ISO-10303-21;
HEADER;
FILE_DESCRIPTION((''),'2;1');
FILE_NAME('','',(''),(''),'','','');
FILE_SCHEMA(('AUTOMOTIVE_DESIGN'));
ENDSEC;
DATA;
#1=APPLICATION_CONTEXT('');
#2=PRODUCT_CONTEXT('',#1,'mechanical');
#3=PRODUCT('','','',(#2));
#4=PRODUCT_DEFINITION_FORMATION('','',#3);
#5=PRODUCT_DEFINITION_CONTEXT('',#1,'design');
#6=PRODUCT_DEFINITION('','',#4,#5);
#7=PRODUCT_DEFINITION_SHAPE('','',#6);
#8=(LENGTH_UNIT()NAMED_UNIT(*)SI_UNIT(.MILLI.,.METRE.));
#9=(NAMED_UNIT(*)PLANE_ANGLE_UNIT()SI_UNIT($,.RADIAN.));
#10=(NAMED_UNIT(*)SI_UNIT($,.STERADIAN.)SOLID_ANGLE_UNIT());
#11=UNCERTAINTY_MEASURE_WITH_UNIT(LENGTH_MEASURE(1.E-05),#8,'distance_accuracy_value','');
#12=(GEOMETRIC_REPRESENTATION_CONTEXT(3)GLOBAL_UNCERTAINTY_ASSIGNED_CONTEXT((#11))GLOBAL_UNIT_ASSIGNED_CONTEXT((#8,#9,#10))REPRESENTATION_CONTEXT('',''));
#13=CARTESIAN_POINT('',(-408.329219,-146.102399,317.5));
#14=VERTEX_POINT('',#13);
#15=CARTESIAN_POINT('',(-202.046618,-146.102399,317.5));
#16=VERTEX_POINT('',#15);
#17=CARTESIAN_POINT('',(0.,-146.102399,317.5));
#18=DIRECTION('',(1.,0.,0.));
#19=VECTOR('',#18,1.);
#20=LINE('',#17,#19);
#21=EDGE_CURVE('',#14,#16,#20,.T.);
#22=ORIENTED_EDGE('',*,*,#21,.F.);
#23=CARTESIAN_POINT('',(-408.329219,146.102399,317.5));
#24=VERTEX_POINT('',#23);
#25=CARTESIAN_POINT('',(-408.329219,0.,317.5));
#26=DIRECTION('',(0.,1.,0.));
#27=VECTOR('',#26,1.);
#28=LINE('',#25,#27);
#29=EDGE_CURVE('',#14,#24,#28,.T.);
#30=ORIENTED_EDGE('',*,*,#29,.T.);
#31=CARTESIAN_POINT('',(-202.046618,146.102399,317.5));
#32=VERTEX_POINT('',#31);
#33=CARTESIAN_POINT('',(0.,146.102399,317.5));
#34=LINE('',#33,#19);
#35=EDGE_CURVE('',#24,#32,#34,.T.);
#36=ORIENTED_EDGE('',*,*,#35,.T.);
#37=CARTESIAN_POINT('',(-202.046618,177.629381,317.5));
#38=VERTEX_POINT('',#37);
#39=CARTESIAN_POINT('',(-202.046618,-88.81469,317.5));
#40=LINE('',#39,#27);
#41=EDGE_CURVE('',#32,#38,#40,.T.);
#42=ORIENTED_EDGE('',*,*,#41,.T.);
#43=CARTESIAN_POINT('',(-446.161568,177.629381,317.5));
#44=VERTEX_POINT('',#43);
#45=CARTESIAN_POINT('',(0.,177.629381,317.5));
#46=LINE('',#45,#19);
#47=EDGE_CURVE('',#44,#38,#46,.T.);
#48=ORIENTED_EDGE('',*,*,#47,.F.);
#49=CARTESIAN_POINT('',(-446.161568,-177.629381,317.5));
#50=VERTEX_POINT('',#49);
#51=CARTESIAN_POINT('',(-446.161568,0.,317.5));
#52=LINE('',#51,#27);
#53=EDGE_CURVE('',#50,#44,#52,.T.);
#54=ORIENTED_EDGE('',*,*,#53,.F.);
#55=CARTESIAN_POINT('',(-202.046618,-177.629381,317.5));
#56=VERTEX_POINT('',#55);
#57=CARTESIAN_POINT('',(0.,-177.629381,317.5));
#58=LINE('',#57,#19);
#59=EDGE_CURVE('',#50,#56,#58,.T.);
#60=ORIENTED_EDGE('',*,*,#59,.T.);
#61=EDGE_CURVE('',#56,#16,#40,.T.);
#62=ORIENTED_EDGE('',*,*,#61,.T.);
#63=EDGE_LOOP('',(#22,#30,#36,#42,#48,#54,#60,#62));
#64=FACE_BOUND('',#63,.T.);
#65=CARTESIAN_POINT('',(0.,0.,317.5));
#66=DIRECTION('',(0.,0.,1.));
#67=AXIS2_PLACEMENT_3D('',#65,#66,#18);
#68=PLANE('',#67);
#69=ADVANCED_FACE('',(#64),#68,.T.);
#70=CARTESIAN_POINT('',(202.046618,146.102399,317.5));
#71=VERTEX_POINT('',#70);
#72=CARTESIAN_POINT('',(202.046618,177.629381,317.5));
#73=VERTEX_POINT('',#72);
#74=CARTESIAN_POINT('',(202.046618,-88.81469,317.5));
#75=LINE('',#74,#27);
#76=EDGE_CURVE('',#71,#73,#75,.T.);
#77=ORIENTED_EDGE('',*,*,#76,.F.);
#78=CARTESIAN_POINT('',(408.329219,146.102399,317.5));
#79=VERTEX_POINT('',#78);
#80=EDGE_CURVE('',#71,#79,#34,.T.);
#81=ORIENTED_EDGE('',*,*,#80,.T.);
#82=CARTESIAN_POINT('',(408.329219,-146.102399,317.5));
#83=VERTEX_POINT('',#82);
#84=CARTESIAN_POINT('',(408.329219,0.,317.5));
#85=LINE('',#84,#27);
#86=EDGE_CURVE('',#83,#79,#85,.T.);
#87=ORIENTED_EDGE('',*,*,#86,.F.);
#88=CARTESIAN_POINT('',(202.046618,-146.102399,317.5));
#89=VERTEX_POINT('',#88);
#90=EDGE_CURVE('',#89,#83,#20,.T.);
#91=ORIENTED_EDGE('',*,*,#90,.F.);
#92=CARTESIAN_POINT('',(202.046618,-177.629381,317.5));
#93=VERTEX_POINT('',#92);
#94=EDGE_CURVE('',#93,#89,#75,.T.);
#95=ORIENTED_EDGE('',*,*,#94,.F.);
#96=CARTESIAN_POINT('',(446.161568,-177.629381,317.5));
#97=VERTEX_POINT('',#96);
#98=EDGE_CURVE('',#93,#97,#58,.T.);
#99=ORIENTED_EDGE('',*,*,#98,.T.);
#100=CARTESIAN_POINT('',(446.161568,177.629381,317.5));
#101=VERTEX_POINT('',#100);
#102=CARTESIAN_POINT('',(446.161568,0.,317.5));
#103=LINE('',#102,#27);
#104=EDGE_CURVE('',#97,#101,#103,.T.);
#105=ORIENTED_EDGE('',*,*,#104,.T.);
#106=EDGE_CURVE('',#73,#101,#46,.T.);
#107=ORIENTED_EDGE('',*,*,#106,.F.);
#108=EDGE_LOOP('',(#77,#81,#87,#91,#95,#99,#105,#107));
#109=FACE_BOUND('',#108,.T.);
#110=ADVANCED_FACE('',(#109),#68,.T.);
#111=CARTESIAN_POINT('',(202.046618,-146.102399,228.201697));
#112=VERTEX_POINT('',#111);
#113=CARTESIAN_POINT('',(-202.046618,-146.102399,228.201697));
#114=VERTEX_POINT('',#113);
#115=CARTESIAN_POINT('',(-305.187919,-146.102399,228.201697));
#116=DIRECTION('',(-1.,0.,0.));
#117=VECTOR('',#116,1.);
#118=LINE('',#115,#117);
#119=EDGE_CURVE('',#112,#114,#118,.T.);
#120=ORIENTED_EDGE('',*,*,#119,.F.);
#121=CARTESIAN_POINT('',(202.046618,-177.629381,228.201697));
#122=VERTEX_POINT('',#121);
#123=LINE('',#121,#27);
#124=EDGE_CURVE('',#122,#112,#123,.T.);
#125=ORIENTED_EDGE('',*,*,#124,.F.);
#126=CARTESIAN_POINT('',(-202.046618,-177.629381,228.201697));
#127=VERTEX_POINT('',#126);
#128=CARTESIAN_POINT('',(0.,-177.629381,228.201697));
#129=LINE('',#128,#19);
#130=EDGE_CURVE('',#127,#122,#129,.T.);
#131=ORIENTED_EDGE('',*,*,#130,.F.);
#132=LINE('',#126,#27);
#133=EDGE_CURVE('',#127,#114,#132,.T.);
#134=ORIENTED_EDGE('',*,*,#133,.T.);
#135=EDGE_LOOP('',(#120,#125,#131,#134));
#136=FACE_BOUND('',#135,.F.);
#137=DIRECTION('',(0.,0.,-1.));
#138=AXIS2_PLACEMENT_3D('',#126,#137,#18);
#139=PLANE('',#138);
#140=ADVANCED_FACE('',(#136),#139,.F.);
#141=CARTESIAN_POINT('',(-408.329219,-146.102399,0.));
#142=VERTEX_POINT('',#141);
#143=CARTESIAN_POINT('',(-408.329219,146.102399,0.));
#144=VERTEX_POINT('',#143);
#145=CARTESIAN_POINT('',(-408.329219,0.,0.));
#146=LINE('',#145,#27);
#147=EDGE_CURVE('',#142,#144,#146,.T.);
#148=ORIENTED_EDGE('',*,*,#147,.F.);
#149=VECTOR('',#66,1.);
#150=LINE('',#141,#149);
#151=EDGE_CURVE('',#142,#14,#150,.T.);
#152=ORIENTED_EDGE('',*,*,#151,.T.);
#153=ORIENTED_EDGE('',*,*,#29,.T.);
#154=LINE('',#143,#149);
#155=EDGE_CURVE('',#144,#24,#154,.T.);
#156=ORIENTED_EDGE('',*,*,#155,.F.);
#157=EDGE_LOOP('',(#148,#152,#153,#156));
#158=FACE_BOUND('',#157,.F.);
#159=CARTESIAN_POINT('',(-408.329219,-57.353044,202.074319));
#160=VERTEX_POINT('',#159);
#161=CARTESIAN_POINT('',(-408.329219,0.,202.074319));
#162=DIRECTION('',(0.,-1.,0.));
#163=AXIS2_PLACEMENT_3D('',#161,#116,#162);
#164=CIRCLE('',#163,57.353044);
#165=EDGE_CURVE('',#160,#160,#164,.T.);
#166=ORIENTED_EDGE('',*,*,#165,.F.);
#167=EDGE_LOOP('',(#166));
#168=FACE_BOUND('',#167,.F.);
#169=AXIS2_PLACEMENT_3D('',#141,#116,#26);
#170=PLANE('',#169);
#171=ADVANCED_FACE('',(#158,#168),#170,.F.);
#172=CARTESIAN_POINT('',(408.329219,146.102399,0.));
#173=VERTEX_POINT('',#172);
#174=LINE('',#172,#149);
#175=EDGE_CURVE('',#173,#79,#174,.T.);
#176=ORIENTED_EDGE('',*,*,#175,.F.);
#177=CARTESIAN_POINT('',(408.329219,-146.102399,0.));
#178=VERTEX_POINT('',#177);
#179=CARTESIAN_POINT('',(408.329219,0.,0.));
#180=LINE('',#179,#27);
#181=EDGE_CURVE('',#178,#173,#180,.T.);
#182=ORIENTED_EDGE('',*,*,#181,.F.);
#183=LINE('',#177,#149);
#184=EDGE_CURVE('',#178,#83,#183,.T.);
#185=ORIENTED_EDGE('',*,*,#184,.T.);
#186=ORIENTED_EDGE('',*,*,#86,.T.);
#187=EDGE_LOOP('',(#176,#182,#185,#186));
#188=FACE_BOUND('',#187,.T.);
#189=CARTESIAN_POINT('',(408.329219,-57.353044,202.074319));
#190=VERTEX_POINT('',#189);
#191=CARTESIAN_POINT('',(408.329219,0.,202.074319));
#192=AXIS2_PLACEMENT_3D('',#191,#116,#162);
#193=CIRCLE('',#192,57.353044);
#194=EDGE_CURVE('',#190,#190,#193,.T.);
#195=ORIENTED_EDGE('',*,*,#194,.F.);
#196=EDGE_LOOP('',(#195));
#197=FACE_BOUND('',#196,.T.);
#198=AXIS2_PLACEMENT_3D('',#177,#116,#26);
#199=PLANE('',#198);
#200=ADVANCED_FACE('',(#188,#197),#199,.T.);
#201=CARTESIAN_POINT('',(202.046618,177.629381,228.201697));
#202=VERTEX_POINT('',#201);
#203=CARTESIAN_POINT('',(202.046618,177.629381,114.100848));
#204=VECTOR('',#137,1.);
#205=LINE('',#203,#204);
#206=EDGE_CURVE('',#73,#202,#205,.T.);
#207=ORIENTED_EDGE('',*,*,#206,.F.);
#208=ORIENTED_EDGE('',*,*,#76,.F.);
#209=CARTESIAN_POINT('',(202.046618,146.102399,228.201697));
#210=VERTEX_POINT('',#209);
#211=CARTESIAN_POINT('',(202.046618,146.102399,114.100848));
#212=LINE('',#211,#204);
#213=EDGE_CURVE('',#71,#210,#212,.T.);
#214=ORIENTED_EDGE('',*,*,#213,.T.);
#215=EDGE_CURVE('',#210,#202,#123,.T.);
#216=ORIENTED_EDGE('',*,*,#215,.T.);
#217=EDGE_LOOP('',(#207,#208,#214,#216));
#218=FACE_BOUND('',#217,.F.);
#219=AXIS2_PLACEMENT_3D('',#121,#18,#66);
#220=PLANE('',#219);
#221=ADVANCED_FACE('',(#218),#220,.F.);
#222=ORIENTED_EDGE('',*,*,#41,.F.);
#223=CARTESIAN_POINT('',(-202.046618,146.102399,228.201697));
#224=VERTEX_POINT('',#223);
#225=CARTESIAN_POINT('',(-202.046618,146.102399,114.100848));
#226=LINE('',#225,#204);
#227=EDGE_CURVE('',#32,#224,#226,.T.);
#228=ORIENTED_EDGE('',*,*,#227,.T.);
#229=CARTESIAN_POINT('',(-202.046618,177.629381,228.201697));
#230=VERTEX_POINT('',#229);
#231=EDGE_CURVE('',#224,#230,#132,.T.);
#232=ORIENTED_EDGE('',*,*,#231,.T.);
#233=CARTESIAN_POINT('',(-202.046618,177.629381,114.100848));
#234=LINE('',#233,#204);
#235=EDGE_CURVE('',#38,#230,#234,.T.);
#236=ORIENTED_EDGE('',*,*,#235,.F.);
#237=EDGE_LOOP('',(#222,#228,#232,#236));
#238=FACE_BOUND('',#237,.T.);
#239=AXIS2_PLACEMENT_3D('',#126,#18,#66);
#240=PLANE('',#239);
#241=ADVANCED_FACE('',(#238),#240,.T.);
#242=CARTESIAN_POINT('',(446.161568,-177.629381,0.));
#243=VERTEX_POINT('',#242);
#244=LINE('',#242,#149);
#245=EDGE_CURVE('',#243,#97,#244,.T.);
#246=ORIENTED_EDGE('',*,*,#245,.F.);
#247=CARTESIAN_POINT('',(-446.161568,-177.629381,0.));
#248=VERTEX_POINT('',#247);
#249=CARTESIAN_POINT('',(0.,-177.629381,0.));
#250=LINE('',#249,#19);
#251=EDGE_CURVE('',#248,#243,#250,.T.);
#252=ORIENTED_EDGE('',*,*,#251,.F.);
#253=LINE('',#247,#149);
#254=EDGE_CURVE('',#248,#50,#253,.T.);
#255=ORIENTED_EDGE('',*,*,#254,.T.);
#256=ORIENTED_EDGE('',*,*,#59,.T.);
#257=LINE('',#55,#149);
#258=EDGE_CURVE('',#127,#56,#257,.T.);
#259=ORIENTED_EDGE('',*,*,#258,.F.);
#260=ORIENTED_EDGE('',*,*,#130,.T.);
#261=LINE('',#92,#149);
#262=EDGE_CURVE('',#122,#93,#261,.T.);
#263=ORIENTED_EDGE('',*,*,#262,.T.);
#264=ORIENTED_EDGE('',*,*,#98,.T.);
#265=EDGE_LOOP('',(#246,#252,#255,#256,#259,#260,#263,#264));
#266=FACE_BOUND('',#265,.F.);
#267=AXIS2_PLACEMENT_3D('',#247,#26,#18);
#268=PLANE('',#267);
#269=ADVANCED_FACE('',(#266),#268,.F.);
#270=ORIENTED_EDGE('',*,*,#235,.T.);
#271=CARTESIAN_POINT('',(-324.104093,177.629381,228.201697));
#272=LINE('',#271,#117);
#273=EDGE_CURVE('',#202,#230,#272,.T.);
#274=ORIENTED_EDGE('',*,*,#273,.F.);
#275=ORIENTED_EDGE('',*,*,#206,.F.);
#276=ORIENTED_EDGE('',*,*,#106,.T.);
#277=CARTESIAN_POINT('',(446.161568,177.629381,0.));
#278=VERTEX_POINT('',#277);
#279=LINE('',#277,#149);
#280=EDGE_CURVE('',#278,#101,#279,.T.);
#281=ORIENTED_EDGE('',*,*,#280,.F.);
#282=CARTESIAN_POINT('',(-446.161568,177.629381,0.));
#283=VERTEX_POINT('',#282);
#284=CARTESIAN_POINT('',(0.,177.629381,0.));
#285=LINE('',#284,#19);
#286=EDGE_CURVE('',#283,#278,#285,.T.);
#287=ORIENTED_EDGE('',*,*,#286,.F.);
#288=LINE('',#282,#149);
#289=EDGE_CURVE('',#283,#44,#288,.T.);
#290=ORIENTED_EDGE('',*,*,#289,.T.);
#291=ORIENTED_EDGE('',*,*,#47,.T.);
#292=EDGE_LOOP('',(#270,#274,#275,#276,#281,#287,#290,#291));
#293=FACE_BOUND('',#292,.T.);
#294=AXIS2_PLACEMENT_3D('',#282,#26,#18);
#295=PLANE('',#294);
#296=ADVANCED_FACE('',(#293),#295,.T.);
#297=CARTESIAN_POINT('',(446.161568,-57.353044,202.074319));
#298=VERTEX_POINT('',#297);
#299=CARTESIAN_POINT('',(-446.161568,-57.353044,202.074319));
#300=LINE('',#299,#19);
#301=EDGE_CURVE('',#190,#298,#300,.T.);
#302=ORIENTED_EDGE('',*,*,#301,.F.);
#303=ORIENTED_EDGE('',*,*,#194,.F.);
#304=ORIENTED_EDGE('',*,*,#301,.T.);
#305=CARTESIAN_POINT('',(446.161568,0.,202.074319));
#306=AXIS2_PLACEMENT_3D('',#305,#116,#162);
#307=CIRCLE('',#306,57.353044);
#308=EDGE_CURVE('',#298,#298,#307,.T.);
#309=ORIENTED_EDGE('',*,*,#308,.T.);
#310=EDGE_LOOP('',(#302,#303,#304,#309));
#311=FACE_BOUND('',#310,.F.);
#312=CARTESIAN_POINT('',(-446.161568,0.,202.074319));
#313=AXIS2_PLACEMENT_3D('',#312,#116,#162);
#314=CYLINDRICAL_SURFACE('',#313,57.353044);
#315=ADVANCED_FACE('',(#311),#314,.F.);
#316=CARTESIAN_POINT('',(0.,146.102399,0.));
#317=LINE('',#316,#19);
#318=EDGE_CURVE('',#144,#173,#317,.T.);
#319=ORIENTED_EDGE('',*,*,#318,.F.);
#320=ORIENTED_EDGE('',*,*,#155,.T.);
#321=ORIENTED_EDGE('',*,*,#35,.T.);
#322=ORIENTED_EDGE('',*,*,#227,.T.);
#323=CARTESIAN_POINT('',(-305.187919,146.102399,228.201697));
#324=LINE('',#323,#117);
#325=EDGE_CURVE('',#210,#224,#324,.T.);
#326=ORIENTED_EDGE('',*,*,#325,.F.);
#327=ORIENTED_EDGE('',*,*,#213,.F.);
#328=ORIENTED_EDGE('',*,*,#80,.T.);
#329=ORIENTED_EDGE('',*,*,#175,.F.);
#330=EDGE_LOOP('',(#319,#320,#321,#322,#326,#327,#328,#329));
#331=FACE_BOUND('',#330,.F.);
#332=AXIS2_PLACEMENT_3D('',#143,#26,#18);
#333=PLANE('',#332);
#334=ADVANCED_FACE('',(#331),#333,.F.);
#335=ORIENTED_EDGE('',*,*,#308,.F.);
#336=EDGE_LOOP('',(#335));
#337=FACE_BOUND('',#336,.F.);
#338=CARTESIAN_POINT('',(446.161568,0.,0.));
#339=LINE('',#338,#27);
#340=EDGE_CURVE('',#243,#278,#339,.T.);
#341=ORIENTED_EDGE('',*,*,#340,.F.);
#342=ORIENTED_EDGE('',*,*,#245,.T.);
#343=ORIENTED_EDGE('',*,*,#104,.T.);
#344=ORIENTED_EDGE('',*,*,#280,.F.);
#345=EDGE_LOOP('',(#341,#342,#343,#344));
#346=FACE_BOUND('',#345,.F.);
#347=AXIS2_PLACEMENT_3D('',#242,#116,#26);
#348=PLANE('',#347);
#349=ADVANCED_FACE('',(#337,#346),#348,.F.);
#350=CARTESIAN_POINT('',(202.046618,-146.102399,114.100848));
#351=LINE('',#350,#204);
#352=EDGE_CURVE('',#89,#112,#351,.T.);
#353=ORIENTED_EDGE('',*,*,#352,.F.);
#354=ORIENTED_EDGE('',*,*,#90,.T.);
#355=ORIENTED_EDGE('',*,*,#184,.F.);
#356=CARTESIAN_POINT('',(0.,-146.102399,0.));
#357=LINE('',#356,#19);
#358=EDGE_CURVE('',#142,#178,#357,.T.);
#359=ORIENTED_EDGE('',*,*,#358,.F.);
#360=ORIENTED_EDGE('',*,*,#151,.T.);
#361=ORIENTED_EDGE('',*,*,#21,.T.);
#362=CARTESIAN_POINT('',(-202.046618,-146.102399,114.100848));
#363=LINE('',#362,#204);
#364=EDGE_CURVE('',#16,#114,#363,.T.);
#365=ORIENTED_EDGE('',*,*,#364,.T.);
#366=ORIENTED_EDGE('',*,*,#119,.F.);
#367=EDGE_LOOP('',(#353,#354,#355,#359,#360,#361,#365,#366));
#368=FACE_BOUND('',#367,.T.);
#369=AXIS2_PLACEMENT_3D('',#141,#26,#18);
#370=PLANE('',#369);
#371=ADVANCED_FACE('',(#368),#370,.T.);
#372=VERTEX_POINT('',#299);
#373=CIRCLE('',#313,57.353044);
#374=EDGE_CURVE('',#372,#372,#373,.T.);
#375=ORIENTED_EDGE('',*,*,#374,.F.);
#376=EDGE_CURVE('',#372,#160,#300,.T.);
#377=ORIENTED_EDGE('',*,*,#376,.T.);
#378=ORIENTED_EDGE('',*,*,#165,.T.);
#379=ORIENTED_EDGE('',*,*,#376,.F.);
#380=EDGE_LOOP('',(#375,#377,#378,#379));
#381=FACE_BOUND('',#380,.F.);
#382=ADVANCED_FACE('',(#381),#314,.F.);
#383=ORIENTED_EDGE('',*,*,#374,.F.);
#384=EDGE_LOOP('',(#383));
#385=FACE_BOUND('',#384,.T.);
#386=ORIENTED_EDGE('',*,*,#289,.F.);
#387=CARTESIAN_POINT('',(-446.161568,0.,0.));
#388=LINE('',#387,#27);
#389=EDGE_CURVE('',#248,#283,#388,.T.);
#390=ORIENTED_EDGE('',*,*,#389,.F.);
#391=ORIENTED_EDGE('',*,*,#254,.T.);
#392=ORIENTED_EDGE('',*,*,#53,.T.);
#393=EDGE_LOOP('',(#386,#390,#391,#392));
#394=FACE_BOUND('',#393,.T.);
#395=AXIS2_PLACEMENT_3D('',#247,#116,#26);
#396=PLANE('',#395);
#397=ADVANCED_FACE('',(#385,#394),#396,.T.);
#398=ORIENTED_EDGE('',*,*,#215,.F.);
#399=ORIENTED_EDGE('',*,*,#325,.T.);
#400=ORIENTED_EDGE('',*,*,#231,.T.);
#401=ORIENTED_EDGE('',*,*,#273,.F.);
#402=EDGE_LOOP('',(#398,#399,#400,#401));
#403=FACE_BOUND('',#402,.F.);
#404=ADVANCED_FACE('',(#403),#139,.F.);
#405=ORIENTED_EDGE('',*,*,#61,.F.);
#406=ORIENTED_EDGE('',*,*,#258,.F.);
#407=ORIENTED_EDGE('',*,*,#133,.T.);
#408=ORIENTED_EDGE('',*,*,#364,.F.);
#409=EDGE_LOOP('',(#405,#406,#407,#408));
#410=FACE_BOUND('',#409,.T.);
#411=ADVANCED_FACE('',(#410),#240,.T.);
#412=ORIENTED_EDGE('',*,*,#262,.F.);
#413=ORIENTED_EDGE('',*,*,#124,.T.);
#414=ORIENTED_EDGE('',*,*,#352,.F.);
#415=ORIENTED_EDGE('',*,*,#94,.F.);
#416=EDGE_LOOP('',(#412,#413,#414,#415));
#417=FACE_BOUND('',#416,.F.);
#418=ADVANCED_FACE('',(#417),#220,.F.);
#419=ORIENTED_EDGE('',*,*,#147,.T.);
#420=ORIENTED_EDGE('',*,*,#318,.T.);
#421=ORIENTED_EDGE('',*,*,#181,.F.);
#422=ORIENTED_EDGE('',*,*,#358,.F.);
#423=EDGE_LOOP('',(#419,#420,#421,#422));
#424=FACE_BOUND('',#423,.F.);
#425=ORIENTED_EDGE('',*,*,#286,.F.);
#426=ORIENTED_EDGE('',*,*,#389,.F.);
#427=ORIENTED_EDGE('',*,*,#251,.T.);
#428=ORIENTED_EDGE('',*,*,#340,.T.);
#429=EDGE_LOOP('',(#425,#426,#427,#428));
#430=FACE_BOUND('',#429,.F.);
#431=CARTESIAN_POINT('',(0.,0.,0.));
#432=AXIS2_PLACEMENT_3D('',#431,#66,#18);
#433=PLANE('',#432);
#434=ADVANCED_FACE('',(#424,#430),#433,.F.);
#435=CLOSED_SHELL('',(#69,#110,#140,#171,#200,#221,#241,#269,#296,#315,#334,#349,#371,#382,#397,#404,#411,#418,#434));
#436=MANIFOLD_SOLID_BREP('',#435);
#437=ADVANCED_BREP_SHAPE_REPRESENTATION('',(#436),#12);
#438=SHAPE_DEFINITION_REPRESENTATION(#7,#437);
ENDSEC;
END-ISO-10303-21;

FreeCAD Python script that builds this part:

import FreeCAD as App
import Part
import Sketcher
from FreeCAD import Vector
Q = App.Units.Quantity

doc = App.newDocument("Part")
params = doc.addObject("Spreadsheet::Sheet", "Params")
for row, (alias, value) in enumerate([
    ("pad1_length", "12.5 in"),
], start=1):
    params.set(f"A{row}", alias)
    params.set(f"B{row}", "=" + value)
    params.setAlias(f"B{row}", alias)

body = doc.addObject("PartDesign::Body", "Body")

# Sketch on XY plane
sketch1 = body.newObject("Sketcher::SketchObject", "Sketch")
sketch1.AttachmentSupport = (doc.getObject("XY_Plane"), [""])
sketch1.MapMode = "FlatFace"
sketch1.addGeometry([
    Part.LineSegment(Vector(-446, 178, 0), Vector(-446, -178, 0)),  # 0
    Part.LineSegment(Vector(-446, -178, 0), Vector(446, -178, 0)),  # 1
    Part.LineSegment(Vector(446, -178, 0), Vector(446, 178, 0)),  # 2
    Part.LineSegment(Vector(446, 178, 0), Vector(-446, 178, 0)),  # 3
    Part.LineSegment(Vector(408, -146, 0), Vector(-408, -146, 0)),  # 4
    Part.LineSegment(Vector(-408, -146, 0), Vector(-408, 146, 0)),  # 5
    Part.LineSegment(Vector(-408, 146, 0), Vector(408, 146, 0)),  # 6
    Part.LineSegment(Vector(408, 146, 0), Vector(408, -146, 0)),  # 7
], False)
sketch1.addConstraint([
    Sketcher.Constraint("Coincident", 0, 2, 1, 1),
    Sketcher.Constraint("Coincident", 1, 2, 2, 1),
    Sketcher.Constraint("Coincident", 2, 2, 3, 1),
    Sketcher.Constraint("Coincident", 3, 2, 0, 1),
    Sketcher.Constraint("Coincident", 4, 2, 5, 1),
    Sketcher.Constraint("Coincident", 5, 2, 6, 1),
    Sketcher.Constraint("Coincident", 6, 2, 7, 1),
    Sketcher.Constraint("Coincident", 7, 2, 4, 1),
    Sketcher.Constraint("Vertical", 0),
    Sketcher.Constraint("Horizontal", 1),
    Sketcher.Constraint("Vertical", 2),
    Sketcher.Constraint("Horizontal", 3),
    Sketcher.Constraint("Horizontal", 4),
    Sketcher.Constraint("Vertical", 5),
    Sketcher.Constraint("Horizontal", 6),
    Sketcher.Constraint("Vertical", 7),
    Sketcher.Constraint("Symmetric", 0, 2, 2, 2, -1, 1),
    Sketcher.Constraint("Symmetric", 4, 2, 6, 2, -1, 1),
    Sketcher.Constraint("DistanceY", 5, 1, 5, 2, Q("292.204798 mm")),
    Sketcher.Constraint("DistanceX", 4, 2, 4, 1, Q("816.658438 mm")),
    Sketcher.Constraint("DistanceY", 0, 2, 0, 1, Q("355.258762 mm")),
    Sketcher.Constraint("DistanceX", 1, 1, 1, 2, Q("892.323136 mm")),
])
pad1 = body.newObject("PartDesign::Pad", "Pad")
pad1.Profile = sketch1
pad1.setExpression("Length", "Params.pad1_length")

# Sketch on XZ plane
sketch2 = body.newObject("Sketcher::SketchObject", "Sketch001")
sketch2.AttachmentSupport = (doc.getObject("XZ_Plane"), [""])
sketch2.MapMode = "FlatFace"
sketch2.AttachmentOffset = App.Placement(Vector(0, 0, 177.629381), App.Rotation())
sketch2.addGeometry([
    Part.LineSegment(Vector(-202, 407, 0), Vector(-202, 228, 0)),
    Part.LineSegment(Vector(-202, 228, 0), Vector(202, 228, 0)),
    Part.LineSegment(Vector(202, 228, 0), Vector(202, 407, 0)),
    Part.LineSegment(Vector(202, 407, 0), Vector(-202, 407, 0)),
], False)
sketch2.addConstraint([
    Sketcher.Constraint("Coincident", 0, 2, 1, 1),
    Sketcher.Constraint("Coincident", 1, 2, 2, 1),
    Sketcher.Constraint("Coincident", 2, 2, 3, 1),
    Sketcher.Constraint("Coincident", 3, 2, 0, 1),
    Sketcher.Constraint("Vertical", 0),
    Sketcher.Constraint("Horizontal", 1),
    Sketcher.Constraint("Vertical", 2),
    Sketcher.Constraint("Horizontal", 3),
    Sketcher.Constraint("DistanceX", 1, 1, 1, 2, Q("404.093236 mm")),
    Sketcher.Constraint("DistanceY", 0, 2, 0, 1, Q("178.596606 mm")),
    Sketcher.Constraint("DistanceX", 0, 2, -1, 1, Q("202.046618 mm")),
    Sketcher.Constraint("DistanceY", -1, 1, 0, 2, Q("228.201697 mm")),
])
pocket1 = body.newObject("PartDesign::Pocket", "Pocket")
pocket1.Profile = sketch2
pocket1.Type = "ThroughAll"

# Sketch on YZ plane
sketch3 = body.newObject("Sketcher::SketchObject", "Sketch002")
sketch3.AttachmentSupport = (doc.getObject("YZ_Plane"), [""])
sketch3.MapMode = "FlatFace"
sketch3.AttachmentOffset = App.Placement(Vector(0, 0, -446.161568), App.Rotation())
sketch3.addGeometry(Part.Circle(Vector(0, 202, 0), Vector(0, 0, 1), 57), False)
sketch3.addConstraint([
    Sketcher.Constraint("PointOnObject", 0, 3, -2),
    Sketcher.Constraint("Diameter", 0, Q("114.706088 mm")),
    Sketcher.Constraint("DistanceY", -1, 1, 0, 3, Q("202.074319 mm")),
])
pocket2 = body.newObject("PartDesign::Pocket", "Pocket001")
pocket2.Profile = sketch3
pocket2.Type = "ThroughAll"
pocket2.Reversed = True

doc.recompute()
